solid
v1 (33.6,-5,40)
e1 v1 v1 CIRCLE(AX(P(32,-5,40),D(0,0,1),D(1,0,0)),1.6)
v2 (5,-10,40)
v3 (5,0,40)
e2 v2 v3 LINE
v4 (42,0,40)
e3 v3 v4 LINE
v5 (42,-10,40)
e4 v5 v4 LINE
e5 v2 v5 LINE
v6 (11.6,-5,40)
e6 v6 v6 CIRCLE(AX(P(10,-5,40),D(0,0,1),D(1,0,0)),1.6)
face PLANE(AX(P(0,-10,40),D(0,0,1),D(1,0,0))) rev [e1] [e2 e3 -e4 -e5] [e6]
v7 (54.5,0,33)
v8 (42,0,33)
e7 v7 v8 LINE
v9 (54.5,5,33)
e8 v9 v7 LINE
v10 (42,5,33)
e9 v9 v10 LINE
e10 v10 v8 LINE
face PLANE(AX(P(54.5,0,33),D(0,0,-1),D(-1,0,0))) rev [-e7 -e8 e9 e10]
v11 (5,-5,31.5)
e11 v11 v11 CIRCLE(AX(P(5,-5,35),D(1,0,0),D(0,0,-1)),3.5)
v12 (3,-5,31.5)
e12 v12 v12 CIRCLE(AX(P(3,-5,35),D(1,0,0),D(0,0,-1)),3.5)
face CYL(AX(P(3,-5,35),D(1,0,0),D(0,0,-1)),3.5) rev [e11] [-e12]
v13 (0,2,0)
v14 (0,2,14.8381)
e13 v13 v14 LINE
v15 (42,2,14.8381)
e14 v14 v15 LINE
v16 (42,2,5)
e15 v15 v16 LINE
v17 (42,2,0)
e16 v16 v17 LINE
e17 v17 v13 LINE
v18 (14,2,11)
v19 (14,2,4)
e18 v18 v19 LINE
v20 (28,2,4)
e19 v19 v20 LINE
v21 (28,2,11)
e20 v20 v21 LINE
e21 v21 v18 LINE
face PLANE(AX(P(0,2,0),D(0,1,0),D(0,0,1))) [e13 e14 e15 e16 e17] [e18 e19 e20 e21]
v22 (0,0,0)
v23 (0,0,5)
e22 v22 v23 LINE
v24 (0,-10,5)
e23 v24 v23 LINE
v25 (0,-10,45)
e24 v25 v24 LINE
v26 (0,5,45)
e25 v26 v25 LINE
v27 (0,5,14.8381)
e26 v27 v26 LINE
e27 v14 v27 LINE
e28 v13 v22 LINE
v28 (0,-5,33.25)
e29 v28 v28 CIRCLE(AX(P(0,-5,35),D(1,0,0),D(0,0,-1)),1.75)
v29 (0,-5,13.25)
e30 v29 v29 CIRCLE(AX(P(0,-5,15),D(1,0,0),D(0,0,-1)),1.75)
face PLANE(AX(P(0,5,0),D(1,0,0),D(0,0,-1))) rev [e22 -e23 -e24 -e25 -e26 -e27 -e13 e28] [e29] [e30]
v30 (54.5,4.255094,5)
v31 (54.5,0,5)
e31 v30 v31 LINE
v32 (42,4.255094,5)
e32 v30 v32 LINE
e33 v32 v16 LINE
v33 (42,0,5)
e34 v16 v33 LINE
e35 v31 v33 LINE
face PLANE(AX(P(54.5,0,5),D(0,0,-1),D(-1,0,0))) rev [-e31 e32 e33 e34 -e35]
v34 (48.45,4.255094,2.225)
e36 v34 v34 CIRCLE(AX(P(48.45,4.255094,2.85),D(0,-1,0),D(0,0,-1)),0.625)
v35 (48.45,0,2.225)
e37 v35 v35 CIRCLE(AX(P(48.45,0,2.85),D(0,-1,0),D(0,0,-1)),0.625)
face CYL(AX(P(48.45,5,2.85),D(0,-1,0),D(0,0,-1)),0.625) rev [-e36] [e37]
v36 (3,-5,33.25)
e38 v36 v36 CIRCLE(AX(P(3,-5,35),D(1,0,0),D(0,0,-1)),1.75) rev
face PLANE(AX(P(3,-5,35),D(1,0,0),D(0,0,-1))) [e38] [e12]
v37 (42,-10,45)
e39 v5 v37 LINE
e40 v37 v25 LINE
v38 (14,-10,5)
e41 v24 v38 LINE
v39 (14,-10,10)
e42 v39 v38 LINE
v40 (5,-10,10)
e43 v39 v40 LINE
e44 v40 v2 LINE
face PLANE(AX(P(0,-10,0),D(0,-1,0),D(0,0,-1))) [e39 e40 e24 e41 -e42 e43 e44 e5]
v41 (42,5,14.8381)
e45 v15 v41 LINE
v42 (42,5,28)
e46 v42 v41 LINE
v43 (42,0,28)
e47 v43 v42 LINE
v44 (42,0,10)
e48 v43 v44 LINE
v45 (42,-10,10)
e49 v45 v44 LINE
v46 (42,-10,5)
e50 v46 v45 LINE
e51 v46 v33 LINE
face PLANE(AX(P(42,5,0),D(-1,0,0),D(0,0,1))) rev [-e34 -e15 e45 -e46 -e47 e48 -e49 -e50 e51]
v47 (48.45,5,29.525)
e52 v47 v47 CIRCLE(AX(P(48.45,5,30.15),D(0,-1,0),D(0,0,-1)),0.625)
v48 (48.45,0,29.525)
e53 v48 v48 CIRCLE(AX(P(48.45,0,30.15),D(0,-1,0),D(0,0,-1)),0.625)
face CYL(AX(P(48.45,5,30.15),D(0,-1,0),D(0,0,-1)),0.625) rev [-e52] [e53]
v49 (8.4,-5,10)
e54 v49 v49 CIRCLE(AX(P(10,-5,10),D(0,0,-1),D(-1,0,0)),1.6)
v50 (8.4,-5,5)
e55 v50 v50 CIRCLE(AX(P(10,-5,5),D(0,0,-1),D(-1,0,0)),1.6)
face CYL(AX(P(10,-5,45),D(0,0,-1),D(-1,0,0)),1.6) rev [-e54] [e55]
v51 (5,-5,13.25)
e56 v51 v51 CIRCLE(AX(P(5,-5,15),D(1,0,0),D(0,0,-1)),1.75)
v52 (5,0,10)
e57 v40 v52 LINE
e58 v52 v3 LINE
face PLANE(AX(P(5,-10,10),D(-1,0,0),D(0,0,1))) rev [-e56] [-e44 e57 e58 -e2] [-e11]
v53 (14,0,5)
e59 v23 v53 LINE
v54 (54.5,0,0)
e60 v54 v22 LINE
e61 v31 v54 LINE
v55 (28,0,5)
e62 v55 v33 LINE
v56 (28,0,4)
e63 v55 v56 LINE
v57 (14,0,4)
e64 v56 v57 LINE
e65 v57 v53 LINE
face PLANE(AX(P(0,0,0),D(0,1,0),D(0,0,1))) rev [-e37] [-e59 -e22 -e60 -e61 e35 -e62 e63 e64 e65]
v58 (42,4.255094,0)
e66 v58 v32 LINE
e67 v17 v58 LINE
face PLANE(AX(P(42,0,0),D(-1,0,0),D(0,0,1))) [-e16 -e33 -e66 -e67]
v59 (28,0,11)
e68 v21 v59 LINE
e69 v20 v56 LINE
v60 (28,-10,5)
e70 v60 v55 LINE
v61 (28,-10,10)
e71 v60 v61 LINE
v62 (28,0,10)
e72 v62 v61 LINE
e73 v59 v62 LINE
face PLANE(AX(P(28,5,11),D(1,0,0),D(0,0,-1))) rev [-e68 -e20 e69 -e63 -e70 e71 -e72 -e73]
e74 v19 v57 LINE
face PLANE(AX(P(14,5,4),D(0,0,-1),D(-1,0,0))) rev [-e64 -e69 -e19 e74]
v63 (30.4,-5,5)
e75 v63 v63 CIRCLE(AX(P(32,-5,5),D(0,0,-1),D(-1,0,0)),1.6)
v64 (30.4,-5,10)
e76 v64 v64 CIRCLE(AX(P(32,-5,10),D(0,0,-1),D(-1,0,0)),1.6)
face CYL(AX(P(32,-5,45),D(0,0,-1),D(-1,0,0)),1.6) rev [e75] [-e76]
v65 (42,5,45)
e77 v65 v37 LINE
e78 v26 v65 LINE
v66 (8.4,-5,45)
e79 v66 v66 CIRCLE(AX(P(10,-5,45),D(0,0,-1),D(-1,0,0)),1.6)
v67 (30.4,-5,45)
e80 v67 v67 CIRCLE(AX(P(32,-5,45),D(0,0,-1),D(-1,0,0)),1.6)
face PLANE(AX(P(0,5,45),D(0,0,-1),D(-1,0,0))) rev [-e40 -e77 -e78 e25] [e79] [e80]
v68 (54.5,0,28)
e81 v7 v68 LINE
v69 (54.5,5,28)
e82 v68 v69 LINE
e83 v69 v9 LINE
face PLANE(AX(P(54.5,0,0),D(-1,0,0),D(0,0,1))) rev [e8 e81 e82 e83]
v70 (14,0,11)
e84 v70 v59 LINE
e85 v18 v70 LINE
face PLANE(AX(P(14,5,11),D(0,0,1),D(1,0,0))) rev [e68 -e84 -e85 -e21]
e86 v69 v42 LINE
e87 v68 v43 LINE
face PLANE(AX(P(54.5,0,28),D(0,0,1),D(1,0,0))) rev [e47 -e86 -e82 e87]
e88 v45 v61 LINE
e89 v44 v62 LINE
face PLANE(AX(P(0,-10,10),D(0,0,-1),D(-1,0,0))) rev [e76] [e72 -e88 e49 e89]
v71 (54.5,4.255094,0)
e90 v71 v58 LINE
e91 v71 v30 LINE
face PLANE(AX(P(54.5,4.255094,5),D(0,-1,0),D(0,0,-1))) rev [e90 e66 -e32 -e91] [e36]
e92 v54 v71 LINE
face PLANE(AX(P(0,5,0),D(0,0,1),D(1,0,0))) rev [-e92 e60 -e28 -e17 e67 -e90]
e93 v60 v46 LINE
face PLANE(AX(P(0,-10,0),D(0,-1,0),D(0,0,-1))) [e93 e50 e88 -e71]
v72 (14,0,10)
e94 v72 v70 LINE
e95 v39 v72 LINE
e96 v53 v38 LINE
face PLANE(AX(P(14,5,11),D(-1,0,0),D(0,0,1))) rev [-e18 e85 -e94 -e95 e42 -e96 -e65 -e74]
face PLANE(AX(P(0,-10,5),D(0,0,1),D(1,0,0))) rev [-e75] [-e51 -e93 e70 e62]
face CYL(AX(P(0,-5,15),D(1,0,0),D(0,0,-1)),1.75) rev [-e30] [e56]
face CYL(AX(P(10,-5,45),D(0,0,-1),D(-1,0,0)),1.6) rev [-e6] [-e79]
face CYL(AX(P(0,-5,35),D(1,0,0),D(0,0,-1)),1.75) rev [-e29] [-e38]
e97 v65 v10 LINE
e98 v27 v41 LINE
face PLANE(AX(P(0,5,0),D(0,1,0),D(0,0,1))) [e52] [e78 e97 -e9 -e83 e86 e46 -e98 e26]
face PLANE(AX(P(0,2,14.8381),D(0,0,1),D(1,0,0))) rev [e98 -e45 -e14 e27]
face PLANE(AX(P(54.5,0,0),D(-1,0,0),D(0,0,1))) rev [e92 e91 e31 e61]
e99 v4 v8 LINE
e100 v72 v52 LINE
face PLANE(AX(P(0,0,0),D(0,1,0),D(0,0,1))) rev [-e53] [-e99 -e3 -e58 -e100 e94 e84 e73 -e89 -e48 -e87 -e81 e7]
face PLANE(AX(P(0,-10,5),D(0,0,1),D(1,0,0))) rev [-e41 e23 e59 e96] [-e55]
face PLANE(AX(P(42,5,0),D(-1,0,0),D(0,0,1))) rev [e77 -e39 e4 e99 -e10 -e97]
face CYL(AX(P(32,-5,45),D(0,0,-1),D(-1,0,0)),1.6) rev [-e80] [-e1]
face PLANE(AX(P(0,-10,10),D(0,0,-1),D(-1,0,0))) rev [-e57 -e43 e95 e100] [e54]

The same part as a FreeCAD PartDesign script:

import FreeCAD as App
import Part
import Sketcher


def add_polygon(sketch, points):
    """Adds a closed chain of lines whose ends are joined by coincident constraints."""
    first, n = sketch.GeometryCount, len(points)
    for a, b in zip(points, points[1:] + points[:1]):
        sketch.addGeometry(Part.LineSegment(App.Vector(*a, 0), App.Vector(*b, 0)), False)
    for i in range(n):
        sketch.addConstraint(Sketcher.Constraint("Coincident", first + i, 2, first + (i + 1) % n, 1))

doc = App.newDocument("Part")
params = doc.addObject("Spreadsheet::Sheet", "Params")
for row, (alias, value) in enumerate([
    ("sketch1_width", "42 mm"),
    ("sketch1_height", "45 mm"),
    ("pad1_length", "5 mm"),
    ("sketch2_width", "42 mm"),
    ("sketch2_height", "5 mm"),
    ("pad2_length", "10 mm"),
    ("sketch3_diameter", "3.2 mm"),
    ("sketch4_width", "14 mm"),
    ("sketch4_height", "7 mm"),
    ("sketch5_width", "42 mm"),
    ("pocket3_length", "3 mm"),
    ("sketch6_width", "5 mm"),
    ("sketch6_height", "30 mm"),
    ("pad3_length", "10 mm"),
    ("sketch7_diameter", "3.5 mm"),
    ("sketch8_diameter", "7 mm"),
    ("pocket5_length", "2 mm"),
    ("sketch9_width", "5 mm"),
    ("pad4_length", "12.5 mm"),
    ("sketch10_diameter", "1.25 mm"),
], start=1):
    params.set(f"A{row}", alias)
    params.set(f"B{row}", "=" + value)
    params.setAlias(f"B{row}", alias)

body = doc.addObject("PartDesign::Body", "Body")

sketch1 = doc.addObject("Sketcher::SketchObject", "Sketch")
body.addObject(sketch1)
sketch1.AttachmentSupport = (doc.XZ_Plane, [""])
sketch1.MapMode = "FlatFace"
add_polygon(sketch1, [(0, 0), (0, 45), (42, 45), (42, 0)])
sketch1.addConstraint(Sketcher.Constraint("Vertical", 0))
sketch1.addConstraint(Sketcher.Constraint("Horizontal", 1))
sketch1.addConstraint(Sketcher.Constraint("Vertical", 2))
sketch1.addConstraint(Sketcher.Constraint("Horizontal", 3))
sketch1.addConstraint(Sketcher.Constraint("Coincident", 3, 2, -1, 1))
sketch1.addConstraint(Sketcher.Constraint("DistanceX", 1, 1, 1, 2, 42.0))
sketch1.addConstraint(Sketcher.Constraint("DistanceY", 0, 1, 0, 2, 45.0))
sketch1.setExpression("Constraints[9]", "Params.sketch1_width")
sketch1.setExpression("Constraints[10]", "Params.sketch1_height")
pad1 = doc.addObject("PartDesign::Pad", "Pad")
body.addObject(pad1)
pad1.Profile = sketch1
pad1.setExpression("Length", "Params.pad1_length")
pad1.Reversed = True

sketch2 = doc.addObject("Sketcher::SketchObject", "Sketch001")
body.addObject(sketch2)
sketch2.AttachmentSupport = (doc.XZ_Plane, [""])
sketch2.MapMode = "FlatFace"
add_polygon(sketch2, [(0, 45), (0, 40), (42, 40), (42, 45)])
add_polygon(sketch2, [(0, 10), (0, 5), (42, 5), (42, 10)])
sketch2.addConstraint(Sketcher.Constraint("Vertical", 0))
sketch2.addConstraint(Sketcher.Constraint("Horizontal", 1))
sketch2.addConstraint(Sketcher.Constraint("Vertical", 2))
sketch2.addConstraint(Sketcher.Constraint("Horizontal", 3))
sketch2.addConstraint(Sketcher.Constraint("Vertical", 4))
sketch2.addConstraint(Sketcher.Constraint("Horizontal", 5))
sketch2.addConstraint(Sketcher.Constraint("Vertical", 6))
sketch2.addConstraint(Sketcher.Constraint("Horizontal", 7))
sketch2.addConstraint(Sketcher.Constraint("PointOnObject", 0, 2, -2))
sketch2.addConstraint(Sketcher.Constraint("PointOnObject", 4, 2, -2))
sketch2.addConstraint(Sketcher.Constraint("Vertical", 2, 2, 5, 2))
sketch2.addConstraint(Sketcher.Constraint("Equal", 2, 4))
sketch2.addConstraint(Sketcher.Constraint("DistanceX", 1, 1, 1, 2, 42.0))
sketch2.addConstraint(Sketcher.Constraint("DistanceY", 0, 2, 0, 1, 5.0))
sketch2.addConstraint(Sketcher.Constraint("DistanceY", -1, 1, 0, 2, 40.0))
sketch2.addConstraint(Sketcher.Constraint("DistanceY", -1, 1, 4, 2, 5.0))
sketch2.setExpression("Constraints[20]", "Params.sketch2_width")
sketch2.setExpression("Constraints[21]", "Params.sketch2_height")
pad2 = doc.addObject("PartDesign::Pad", "Pad001")
body.addObject(pad2)
pad2.Profile = sketch2
pad2.setExpression("Length", "Params.pad2_length")

sketch3 = doc.addObject("Sketcher::SketchObject", "Sketch002")
body.addObject(sketch3)
sketch3.AttachmentSupport = (doc.XY_Plane, [""])
sketch3.MapMode = "FlatFace"
sketch3.AttachmentOffset = App.Placement(App.Vector(0, 0, 5), App.Rotation())
sketch3.addGeometry(Part.Circle(App.Vector(32, -5, 0), App.Vector(0, 0, 1), 1.6), False)
sketch3.addGeometry(Part.Circle(App.Vector(10, -5, 0), App.Vector(0, 0, 1), 1.6), False)
sketch3.addConstraint(Sketcher.Constraint("Equal", 0, 1))
sketch3.addConstraint(Sketcher.Constraint("Horizontal", 0, 3, 1, 3))
sketch3.addConstraint(Sketcher.Constraint("Diameter", 0, 3.2))
sketch3.addConstraint(Sketcher.Constraint("DistanceX", -1, 1, 0, 3, 32.0))
sketch3.addConstraint(Sketcher.Constraint("DistanceY", 0, 3, -1, 1, 5.0))
sketch3.addConstraint(Sketcher.Constraint("DistanceX", -1, 1, 1, 3, 10.0))
sketch3.setExpression("Constraints[2]", "Params.sketch3_diameter")
pocket1 = doc.addObject("PartDesign::Pocket", "Pocket")
body.addObject(pocket1)
pocket1.Profile = sketch3
pocket1.Type = "ThroughAll"
pocket1.Reversed = True

sketch4 = doc.addObject("Sketcher::SketchObject", "Sketch003")
body.addObject(sketch4)
sketch4.AttachmentSupport = (doc.XZ_Plane, [""])
sketch4.MapMode = "FlatFace"
sketch4.AttachmentOffset = App.Placement(App.Vector(0, 0, 10), App.Rotation())
add_polygon(sketch4, [(14, 11), (14, 4), (28, 4), (28, 11)])
sketch4.addConstraint(Sketcher.Constraint("Vertical", 0))
sketch4.addConstraint(Sketcher.Constraint("Horizontal", 1))
sketch4.addConstraint(Sketcher.Constraint("Vertical", 2))
sketch4.addConstraint(Sketcher.Constraint("Horizontal", 3))
sketch4.addConstraint(Sketcher.Constraint("DistanceX", 1, 1, 1, 2, 14.0))
sketch4.addConstraint(Sketcher.Constraint("DistanceY", 0, 2, 0, 1, 7.0))
sketch4.addConstraint(Sketcher.Constraint("DistanceX", -1, 1, 0, 2, 14.0))
sketch4.addConstraint(Sketcher.Constraint("DistanceY", -1, 1, 0, 2, 4.0))
sketch4.setExpression("Constraints[8]", "Params.sketch4_width")
sketch4.setExpression("Constraints[9]", "Params.sketch4_height")
pocket2 = doc.addObject("PartDesign::Pocket", "Pocket001")
body.addObject(pocket2)
pocket2.Profile = sketch4
pocket2.Type = "ThroughAll"

sketch5 = doc.addObject("Sketcher::SketchObject", "Sketch004")
body.addObject(sketch5)
sketch5.AttachmentSupport = (doc.XZ_Plane, [""])
sketch5.MapMode = "FlatFace"
sketch5.AttachmentOffset = App.Placement(App.Vector(0, 0, -5), App.Rotation())
add_polygon(sketch5, [(0, 0), (0, 15), (42, 15), (42, 0)])
sketch5.addConstraint(Sketcher.Constraint("Vertical", 0))
sketch5.addConstraint(Sketcher.Constraint("Horizontal", 1))
sketch5.addConstraint(Sketcher.Constraint("Vertical", 2))
sketch5.addConstraint(Sketcher.Constraint("Horizontal", 3))
sketch5.addConstraint(Sketcher.Constraint("Coincident", 3, 2, -1, 1))
sketch5.addConstraint(Sketcher.Constraint("DistanceX", 1, 1, 1, 2, 42.0))
sketch5.addConstraint(Sketcher.Constraint("DistanceY", 0, 1, 0, 2, 14.8381))
sketch5.setExpression("Constraints[9]", "Params.sketch5_width")
pocket3 = doc.addObject("PartDesign::Pocket", "Pocket002")
body.addObject(pocket3)
pocket3.Profile = sketch5
pocket3.setExpression("Length", "Params.pocket3_length")
pocket3.Reversed = True

sketch6 = doc.addObject("Sketcher::SketchObject", "Sketch005")
body.addObject(sketch6)
sketch6.AttachmentSupport = (doc.XZ_Plane, [""])
sketch6.MapMode = "FlatFace"
add_polygon(sketch6, [(0, 40), (0, 10), (5, 10), (5, 40)])
sketch6.addConstraint(Sketcher.Constraint("Vertical", 0))
sketch6.addConstraint(Sketcher.Constraint("Horizontal", 1))
sketch6.addConstraint(Sketcher.Constraint("Vertical", 2))
sketch6.addConstraint(Sketcher.Constraint("Horizontal", 3))
sketch6.addConstraint(Sketcher.Constraint("PointOnObject", 0, 2, -2))
sketch6.addConstraint(Sketcher.Constraint("DistanceX", 1, 1, 1, 2, 5.0))
sketch6.addConstraint(Sketcher.Constraint("DistanceY", 0, 2, 0, 1, 30.0))
sketch6.addConstraint(Sketcher.Constraint("DistanceY", -1, 1, 0, 2, 10.0))
sketch6.setExpression("Constraints[9]", "Params.sketch6_width")
sketch6.setExpression("Constraints[10]", "Params.sketch6_height")
pad3 = doc.addObject("PartDesign::Pad", "Pad002")
body.addObject(pad3)
pad3.Profile = sketch6
pad3.setExpression("Length", "Params.pad3_length")

sketch7 = doc.addObject("Sketcher::SketchObject", "Sketch006")
body.addObject(sketch7)
sketch7.AttachmentSupport = (doc.YZ_Plane, [""])
sketch7.MapMode = "FlatFace"
sketch7.AttachmentOffset = App.Placement(App.Vector(0, 0, 5), App.Rotation())
sketch7.addGeometry(Part.Circle(App.Vector(-5, 35, 0), App.Vector(0, 0, 1), 1.8), False)
sketch7.addGeometry(Part.Circle(App.Vector(-5, 15, 0), App.Vector(0, 0, 1), 1.8), False)
sketch7.addConstraint(Sketcher.Constraint("Equal", 0, 1))
sketch7.addConstraint(Sketcher.Constraint("Vertical", 0, 3, 1, 3))
sketch7.addConstraint(Sketcher.Constraint("Diameter", 0, 3.5))
sketch7.addConstraint(Sketcher.Constraint("DistanceX", 0, 3, -1, 1, 5.0))
sketch7.addConstraint(Sketcher.Constraint("DistanceY", -1, 1, 0, 3, 35.0))
sketch7.addConstraint(Sketcher.Constraint("DistanceY", -1, 1, 1, 3, 15.0))
sketch7.setExpression("Constraints[2]", "Params.sketch7_diameter")
pocket4 = doc.addObject("PartDesign::Pocket", "Pocket003")
body.addObject(pocket4)
pocket4.Profile = sketch7
pocket4.Type = "ThroughAll"

sketch8 = doc.addObject("Sketcher::SketchObject", "Sketch007")
body.addObject(sketch8)
sketch8.AttachmentSupport = (doc.YZ_Plane, [""])
sketch8.MapMode = "FlatFace"
sketch8.AttachmentOffset = App.Placement(App.Vector(0, 0, 5), App.Rotation())
sketch8.addGeometry(Part.Circle(App.Vector(-5, 35, 0), App.Vector(0, 0, 1), 3.5), False)
sketch8.addConstraint(Sketcher.Constraint("Diameter", 0, 7.0))
sketch8.addConstraint(Sketcher.Constraint("DistanceX", 0, 3, -1, 1, 5.0))
sketch8.addConstraint(Sketcher.Constraint("DistanceY", -1, 1, 0, 3, 35.0))
sketch8.setExpression("Constraints[0]", "Params.sketch8_diameter")
pocket5 = doc.addObject("PartDesign::Pocket", "Pocket004")
body.addObject(pocket5)
pocket5.Profile = sketch8
pocket5.setExpression("Length", "Params.pocket5_length")

sketch9 = doc.addObject("Sketcher::SketchObject", "Sketch008")
body.addObject(sketch9)
sketch9.AttachmentSupport = (doc.YZ_Plane, [""])
sketch9.MapMode = "FlatFace"
sketch9.AttachmentOffset = App.Placement(App.Vector(0, 0, 42), App.Rotation())
add_polygon(sketch9, [(5, 33), (0, 33), (0, 28), (5, 28)])
add_polygon(sketch9, [(4.3, 5), (0, 5), (0, 0), (4.3, 0)])
sketch9.addConstraint(Sketcher.Constraint("Horizontal", 0))
sketch9.addConstraint(Sketcher.Constraint("Vertical", 1))
sketch9.addConstraint(Sketcher.Constraint("Horizontal", 2))
sketch9.addConstraint(Sketcher.Constraint("Vertical", 3))
sketch9.addConstraint(Sketcher.Constraint("Horizontal", 4))
sketch9.addConstraint(Sketcher.Constraint("Vertical", 5))
sketch9.addConstraint(Sketcher.Constraint("Horizontal", 6))
sketch9.addConstraint(Sketcher.Constraint("Vertical", 7))
sketch9.addConstraint(Sketcher.Constraint("Coincident", 5, 2, -1, 1))
sketch9.addConstraint(Sketcher.Constraint("PointOnObject", 0, 2, -2))
sketch9.addConstraint(Sketcher.Constraint("Equal", 2, 1))
sketch9.addConstraint(Sketcher.Constraint("Equal", 3, 5))
sketch9.addConstraint(Sketcher.Constraint("DistanceX", 0, 2, 0, 1, 5.0))
sketch9.addConstraint(Sketcher.Constraint("DistanceY", -1, 1, 0, 2, 33.0))
sketch9.addConstraint(Sketcher.Constraint("DistanceX", 4, 2, 4, 1, 4.255094))
sketch9.setExpression("Constraints[20]", "Params.sketch9_width")
pad4 = doc.addObject("PartDesign::Pad", "Pad003")
body.addObject(pad4)
pad4.Profile = sketch9
pad4.setExpression("Length", "Params.pad4_length")

sketch10 = doc.addObject("Sketcher::SketchObject", "Sketch009")
body.addObject(sketch10)
sketch10.AttachmentSupport = (doc.XZ_Plane, [""])
sketch10.MapMode = "FlatFace"
sketch10.addGeometry(Part.Circle(App.Vector(48.5, 30.1, 0), App.Vector(0, 0, 1), 0.6), False)
sketch10.addGeometry(Part.Circle(App.Vector(48.5, 2.9, 0), App.Vector(0, 0, 1), 0.6), False)
sketch10.addConstraint(Sketcher.Constraint("Equal", 0, 1))
sketch10.addConstraint(Sketcher.Constraint("Vertical", 0, 3, 1, 3))
sketch10.addConstraint(Sketcher.Constraint("Diameter", 0, 1.25))
sketch10.addConstraint(Sketcher.Constraint("DistanceY", 1, 3, 0, 3, 27.3))
sketch10.addConstraint(Sketcher.Constraint("DistanceX", -1, 1, 0, 3, 48.45))
sketch10.addConstraint(Sketcher.Constraint("DistanceY", -1, 1, 0, 3, 30.15))
sketch10.setExpression("Constraints[2]", "Params.sketch10_diameter")
pocket6 = doc.addObject("PartDesign::Pocket", "Pocket005")
body.addObject(pocket6)
pocket6.Profile = sketch10
pocket6.Type = "ThroughAll"

doc.recompute()
